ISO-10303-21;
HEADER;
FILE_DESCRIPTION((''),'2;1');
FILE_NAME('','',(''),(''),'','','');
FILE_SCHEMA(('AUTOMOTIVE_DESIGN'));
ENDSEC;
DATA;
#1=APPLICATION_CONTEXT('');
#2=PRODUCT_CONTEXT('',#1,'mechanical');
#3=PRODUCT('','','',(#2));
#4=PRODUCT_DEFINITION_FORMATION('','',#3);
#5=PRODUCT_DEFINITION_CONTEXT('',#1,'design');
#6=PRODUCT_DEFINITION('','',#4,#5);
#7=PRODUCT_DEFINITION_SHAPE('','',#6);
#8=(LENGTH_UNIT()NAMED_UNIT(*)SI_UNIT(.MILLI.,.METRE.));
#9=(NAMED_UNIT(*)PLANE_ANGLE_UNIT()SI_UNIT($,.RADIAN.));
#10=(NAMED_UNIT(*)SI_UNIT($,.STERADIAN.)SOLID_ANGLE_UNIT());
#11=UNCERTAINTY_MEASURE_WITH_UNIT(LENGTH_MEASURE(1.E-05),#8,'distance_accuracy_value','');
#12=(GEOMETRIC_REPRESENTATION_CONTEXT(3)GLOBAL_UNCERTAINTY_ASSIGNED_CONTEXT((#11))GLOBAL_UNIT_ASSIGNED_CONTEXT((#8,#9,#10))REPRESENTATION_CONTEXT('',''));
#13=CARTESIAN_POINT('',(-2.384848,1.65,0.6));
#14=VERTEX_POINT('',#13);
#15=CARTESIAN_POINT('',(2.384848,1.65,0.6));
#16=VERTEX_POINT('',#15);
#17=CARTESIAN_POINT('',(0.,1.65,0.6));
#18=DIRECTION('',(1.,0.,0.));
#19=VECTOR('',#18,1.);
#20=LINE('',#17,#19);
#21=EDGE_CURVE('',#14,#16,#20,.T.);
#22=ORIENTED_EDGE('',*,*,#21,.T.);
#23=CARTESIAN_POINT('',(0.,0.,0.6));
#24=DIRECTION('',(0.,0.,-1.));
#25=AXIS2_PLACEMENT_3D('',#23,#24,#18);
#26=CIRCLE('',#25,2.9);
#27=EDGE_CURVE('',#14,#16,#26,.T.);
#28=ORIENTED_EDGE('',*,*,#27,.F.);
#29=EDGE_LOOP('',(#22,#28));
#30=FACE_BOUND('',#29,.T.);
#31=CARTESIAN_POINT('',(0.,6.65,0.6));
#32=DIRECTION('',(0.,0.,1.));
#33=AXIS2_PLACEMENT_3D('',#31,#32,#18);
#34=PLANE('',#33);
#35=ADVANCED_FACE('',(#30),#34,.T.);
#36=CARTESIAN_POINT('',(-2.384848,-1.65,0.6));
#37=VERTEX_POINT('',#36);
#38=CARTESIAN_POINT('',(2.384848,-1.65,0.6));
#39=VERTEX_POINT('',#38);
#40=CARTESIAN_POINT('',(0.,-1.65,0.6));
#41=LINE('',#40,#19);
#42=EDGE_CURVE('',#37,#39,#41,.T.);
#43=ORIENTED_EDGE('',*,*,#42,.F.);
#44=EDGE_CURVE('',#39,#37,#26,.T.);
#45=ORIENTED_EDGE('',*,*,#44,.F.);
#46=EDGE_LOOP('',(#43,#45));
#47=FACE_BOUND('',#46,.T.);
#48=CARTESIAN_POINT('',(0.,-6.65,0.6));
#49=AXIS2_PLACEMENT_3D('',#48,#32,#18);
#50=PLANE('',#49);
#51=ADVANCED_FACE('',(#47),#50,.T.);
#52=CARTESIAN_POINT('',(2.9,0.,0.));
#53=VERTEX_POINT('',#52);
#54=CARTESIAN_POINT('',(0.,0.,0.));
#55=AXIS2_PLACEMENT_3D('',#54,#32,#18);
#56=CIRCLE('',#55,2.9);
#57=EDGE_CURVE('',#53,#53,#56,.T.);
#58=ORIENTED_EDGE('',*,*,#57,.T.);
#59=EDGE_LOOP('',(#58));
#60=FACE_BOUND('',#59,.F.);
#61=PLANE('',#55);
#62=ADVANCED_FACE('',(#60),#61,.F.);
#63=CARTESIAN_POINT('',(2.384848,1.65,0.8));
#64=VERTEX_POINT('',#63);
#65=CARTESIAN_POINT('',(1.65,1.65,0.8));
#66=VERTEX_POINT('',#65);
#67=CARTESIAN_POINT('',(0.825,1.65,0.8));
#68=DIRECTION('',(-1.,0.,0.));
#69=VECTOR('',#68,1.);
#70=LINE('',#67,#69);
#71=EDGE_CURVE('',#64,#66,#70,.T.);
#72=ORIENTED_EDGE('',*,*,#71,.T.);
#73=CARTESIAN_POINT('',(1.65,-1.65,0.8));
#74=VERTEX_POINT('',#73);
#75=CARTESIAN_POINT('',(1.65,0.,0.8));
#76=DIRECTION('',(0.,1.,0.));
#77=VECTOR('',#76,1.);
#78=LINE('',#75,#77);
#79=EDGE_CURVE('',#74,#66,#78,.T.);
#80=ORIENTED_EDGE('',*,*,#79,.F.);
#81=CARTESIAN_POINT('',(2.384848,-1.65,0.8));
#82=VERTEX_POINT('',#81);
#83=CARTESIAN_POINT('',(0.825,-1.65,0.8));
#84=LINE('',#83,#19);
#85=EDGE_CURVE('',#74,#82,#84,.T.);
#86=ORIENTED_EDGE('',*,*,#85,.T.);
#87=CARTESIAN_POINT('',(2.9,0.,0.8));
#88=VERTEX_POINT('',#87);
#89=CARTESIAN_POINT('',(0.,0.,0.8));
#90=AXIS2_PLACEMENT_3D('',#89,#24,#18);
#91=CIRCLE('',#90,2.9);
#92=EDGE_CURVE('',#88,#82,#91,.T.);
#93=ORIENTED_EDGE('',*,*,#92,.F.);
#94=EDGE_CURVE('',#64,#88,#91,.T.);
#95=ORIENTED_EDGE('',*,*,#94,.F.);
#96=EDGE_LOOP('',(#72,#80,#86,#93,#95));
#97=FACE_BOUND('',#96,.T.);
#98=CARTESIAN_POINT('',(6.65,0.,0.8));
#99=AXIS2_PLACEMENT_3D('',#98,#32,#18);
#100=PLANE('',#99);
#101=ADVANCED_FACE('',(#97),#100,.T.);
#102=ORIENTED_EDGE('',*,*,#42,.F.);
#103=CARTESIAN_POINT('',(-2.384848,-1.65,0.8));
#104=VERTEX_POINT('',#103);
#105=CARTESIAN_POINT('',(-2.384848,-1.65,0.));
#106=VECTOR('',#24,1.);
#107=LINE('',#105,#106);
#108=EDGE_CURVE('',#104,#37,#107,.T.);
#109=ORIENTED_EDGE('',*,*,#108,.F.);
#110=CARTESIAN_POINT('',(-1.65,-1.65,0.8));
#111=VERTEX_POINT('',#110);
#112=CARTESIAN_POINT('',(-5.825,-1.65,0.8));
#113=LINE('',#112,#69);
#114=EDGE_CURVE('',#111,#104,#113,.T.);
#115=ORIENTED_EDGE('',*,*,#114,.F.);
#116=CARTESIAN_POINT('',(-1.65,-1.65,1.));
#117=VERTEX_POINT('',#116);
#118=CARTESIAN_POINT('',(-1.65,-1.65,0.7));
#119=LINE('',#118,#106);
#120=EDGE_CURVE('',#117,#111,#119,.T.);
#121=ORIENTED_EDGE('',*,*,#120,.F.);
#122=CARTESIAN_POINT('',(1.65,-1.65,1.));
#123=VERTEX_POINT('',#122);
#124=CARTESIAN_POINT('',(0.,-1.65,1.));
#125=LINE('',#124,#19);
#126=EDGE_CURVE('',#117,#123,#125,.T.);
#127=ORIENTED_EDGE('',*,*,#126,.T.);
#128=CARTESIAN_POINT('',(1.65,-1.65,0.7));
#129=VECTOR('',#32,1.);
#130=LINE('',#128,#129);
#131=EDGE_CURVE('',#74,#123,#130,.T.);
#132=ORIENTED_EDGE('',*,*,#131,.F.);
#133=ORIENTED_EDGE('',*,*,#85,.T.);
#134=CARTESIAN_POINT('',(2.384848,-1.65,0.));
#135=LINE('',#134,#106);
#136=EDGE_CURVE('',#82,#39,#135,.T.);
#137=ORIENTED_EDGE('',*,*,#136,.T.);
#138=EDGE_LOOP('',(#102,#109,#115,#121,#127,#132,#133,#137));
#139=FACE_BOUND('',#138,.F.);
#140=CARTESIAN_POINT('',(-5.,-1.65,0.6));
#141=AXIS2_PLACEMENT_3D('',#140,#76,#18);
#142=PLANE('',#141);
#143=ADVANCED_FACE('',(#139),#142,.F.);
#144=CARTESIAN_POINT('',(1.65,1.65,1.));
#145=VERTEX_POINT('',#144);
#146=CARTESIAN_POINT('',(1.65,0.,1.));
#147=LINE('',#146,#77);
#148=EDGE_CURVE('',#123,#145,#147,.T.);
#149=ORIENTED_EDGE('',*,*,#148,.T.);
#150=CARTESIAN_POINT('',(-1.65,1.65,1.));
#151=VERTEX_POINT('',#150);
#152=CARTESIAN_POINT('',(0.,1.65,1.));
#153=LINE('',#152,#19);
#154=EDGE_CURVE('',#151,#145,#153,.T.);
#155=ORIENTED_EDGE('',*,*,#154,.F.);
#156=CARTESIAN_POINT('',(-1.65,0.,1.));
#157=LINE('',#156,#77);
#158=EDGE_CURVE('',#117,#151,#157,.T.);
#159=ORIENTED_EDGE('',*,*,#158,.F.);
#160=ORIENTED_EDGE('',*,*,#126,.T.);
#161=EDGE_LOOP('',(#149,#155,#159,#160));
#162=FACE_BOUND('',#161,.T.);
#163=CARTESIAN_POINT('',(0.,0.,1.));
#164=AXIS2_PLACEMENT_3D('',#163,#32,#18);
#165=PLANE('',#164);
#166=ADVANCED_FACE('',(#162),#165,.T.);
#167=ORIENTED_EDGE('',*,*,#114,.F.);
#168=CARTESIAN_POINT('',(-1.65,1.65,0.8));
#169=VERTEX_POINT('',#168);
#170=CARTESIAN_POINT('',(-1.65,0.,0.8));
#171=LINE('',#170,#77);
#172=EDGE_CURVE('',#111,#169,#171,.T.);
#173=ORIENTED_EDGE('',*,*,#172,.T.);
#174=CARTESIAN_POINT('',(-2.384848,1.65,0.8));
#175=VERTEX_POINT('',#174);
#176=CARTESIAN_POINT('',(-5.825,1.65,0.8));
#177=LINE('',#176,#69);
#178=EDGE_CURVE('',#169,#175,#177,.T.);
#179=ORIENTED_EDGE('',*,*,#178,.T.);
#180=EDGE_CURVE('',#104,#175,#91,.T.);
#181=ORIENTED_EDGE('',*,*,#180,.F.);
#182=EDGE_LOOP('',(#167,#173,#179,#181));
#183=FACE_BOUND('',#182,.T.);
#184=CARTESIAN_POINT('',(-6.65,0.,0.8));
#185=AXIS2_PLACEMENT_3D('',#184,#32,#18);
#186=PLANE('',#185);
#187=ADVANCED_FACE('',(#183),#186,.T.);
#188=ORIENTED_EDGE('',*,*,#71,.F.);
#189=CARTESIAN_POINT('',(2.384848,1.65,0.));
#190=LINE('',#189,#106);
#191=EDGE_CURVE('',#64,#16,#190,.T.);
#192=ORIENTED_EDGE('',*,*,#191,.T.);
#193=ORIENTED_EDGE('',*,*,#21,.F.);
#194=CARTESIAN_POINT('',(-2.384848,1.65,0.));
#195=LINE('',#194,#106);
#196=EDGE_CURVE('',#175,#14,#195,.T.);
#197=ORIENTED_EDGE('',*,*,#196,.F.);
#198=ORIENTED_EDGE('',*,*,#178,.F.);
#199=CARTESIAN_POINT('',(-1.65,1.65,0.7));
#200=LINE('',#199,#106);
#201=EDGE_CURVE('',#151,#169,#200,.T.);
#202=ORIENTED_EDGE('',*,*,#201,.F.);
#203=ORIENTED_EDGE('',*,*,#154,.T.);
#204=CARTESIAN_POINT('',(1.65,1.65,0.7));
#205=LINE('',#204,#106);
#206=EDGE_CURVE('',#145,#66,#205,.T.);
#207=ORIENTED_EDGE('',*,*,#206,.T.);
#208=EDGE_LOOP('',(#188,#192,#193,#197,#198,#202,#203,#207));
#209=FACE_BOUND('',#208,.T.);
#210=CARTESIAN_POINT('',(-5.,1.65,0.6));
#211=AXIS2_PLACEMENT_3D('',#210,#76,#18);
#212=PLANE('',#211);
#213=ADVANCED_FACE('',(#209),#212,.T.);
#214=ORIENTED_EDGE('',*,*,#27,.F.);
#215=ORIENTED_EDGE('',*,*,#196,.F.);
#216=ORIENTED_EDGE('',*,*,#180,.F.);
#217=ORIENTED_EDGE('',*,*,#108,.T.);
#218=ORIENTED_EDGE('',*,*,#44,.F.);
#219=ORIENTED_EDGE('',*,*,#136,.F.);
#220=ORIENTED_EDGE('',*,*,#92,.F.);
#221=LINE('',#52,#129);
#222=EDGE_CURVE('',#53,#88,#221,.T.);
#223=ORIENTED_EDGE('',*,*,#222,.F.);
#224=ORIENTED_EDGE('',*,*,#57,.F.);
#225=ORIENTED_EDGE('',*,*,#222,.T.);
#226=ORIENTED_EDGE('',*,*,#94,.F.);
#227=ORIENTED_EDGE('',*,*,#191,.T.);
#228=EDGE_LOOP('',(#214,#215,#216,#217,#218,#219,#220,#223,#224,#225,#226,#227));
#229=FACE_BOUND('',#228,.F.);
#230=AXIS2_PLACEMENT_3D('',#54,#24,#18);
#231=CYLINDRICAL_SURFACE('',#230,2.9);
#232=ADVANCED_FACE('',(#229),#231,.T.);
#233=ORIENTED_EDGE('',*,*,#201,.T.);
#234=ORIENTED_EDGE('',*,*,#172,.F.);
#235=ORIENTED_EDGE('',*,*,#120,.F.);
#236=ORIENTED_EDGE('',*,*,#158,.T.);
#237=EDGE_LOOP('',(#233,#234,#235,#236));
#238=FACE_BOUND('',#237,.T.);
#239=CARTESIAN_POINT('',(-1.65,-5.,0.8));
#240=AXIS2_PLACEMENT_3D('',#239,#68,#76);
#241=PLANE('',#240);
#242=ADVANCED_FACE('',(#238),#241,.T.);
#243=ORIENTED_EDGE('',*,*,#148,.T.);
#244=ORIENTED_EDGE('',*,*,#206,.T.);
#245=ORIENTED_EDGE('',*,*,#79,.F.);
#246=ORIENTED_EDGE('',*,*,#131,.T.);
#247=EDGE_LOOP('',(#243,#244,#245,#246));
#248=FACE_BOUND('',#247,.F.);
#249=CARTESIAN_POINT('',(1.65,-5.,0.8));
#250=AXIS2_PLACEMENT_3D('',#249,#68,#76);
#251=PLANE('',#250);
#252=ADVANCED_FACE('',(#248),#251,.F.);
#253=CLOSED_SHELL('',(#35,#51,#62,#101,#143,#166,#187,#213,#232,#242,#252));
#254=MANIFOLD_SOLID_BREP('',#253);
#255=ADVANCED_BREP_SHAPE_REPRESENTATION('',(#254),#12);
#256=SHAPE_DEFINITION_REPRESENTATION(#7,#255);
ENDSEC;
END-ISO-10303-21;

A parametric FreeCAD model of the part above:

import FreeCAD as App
import Part
import Sketcher

V = App.Vector
Q = App.Units.Quantity

doc = App.newDocument("Part")
body = doc.addObject("PartDesign::Body", "Body")

# Sketch on XY plane
sketch1 = body.newObject("Sketcher::SketchObject", "Sketch")
sketch1.AttachmentSupport = (doc.getObject("XY_Plane"), [""])
sketch1.MapMode = "FlatFace"
sketch1.addGeometry([
    Part.LineSegment(V(-5, -2, 0), V(-5, -12, 0)),
    Part.LineSegment(V(-5, -12, 0), V(5, -12, 0)),
    Part.LineSegment(V(5, -12, 0), V(5, -2, 0)),
    Part.LineSegment(V(5, -2, 0), V(-5, -2, 0)),
], False)
sketch1.addConstraint([
    Sketcher.Constraint("Coincident", 0, 2, 1, 1),
    Sketcher.Constraint("Coincident", 1, 2, 2, 1),
    Sketcher.Constraint("Coincident", 2, 2, 3, 1),
    Sketcher.Constraint("Coincident", 3, 2, 0, 1),
    Sketcher.Constraint("Vertical", 0),
    Sketcher.Constraint("Horizontal", 1),
    Sketcher.Constraint("Vertical", 2),
    Sketcher.Constraint("Horizontal", 3),
    Sketcher.Constraint("Equal", 3, 0),
    Sketcher.Constraint("DistanceX", 1, 1, 1, 2, Q("10 mm")),
    Sketcher.Constraint("DistanceX", 0, 2, -1, 1, Q("5 mm")),
    Sketcher.Constraint("DistanceY", 0, 2, -1, 1, Q("11.65 mm")),
])
pad1 = body.newObject("PartDesign::Pad", "Pad")
pad1.Profile = sketch1
pad1.Length = 0.4
body2 = doc.addObject("PartDesign::Body", "Body001")

# Sketch on XY plane
sketch2 = body2.newObject("Sketcher::SketchObject", "Sketch001")
sketch2.AttachmentSupport = (doc.getObject("XY_Plane001"), [""])
sketch2.MapMode = "FlatFace"
sketch2.AttachmentOffset = App.Placement(V(0, 0, 0.2), App.Rotation())
sketch2.addGeometry([
    Part.LineSegment(V(2, 5, 0), V(2, -5, 0)),
    Part.LineSegment(V(2, -5, 0), V(12, -5, 0)),
    Part.LineSegment(V(12, -5, 0), V(12, 5, 0)),
    Part.LineSegment(V(12, 5, 0), V(2, 5, 0)),
], False)
sketch2.addConstraint([
    Sketcher.Constraint("Coincident", 0, 2, 1, 1),
    Sketcher.Constraint("Coincident", 1, 2, 2, 1),
    Sketcher.Constraint("Coincident", 2, 2, 3, 1),
    Sketcher.Constraint("Coincident", 3, 2, 0, 1),
    Sketcher.Constraint("Vertical", 0),
    Sketcher.Constraint("Horizontal", 1),
    Sketcher.Constraint("Vertical", 2),
    Sketcher.Constraint("Horizontal", 3),
    Sketcher.Constraint("Equal", 3, 0),
    Sketcher.Constraint("DistanceX", 1, 1, 1, 2, Q("10 mm")),
    Sketcher.Constraint("DistanceY", 0, 2, -1, 1, Q("5 mm")),
    Sketcher.Constraint("DistanceX", -1, 1, 0, 2, Q("1.65 mm")),
])
pad2 = body2.newObject("PartDesign::Pad", "Pad001")
pad2.Profile = sketch2
pad2.Length = 0.2
body3 = doc.addObject("PartDesign::Body", "Body002")

# Sketch on XY plane
sketch3 = body3.newObject("Sketcher::SketchObject", "Sketch002")
sketch3.AttachmentSupport = (doc.getObject("XY_Plane002"), [""])
sketch3.MapMode = "FlatFace"
sketch3.addGeometry([
    Part.LineSegment(V(-5, 12, 0), V(-5, 2, 0)),
    Part.LineSegment(V(-5, 2, 0), V(5, 2, 0)),
    Part.LineSegment(V(5, 2, 0), V(5, 12, 0)),
    Part.LineSegment(V(5, 12, 0), V(-5, 12, 0)),
], False)
sketch3.addConstraint([
    Sketcher.Constraint("Coincident", 0, 2, 1, 1),
    Sketcher.Constraint("Coincident", 1, 2, 2, 1),
    Sketcher.Constraint("Coincident", 2, 2, 3, 1),
    Sketcher.Constraint("Coincident", 3, 2, 0, 1),
    Sketcher.Constraint("Vertical", 0),
    Sketcher.Constraint("Horizontal", 1),
    Sketcher.Constraint("Vertical", 2),
    Sketcher.Constraint("Horizontal", 3),
    Sketcher.Constraint("Equal", 3, 0),
    Sketcher.Constraint("DistanceX", 1, 1, 1, 2, Q("10 mm")),
    Sketcher.Constraint("DistanceX", 0, 2, -1, 1, Q("5 mm")),
    Sketcher.Constraint("DistanceY", -1, 1, 0, 2, Q("1.65 mm")),
])
pad3 = body3.newObject("PartDesign::Pad", "Pad002")
pad3.Profile = sketch3
pad3.Length = 0.4
body4 = doc.addObject("PartDesign::Body", "Body003")

# Sketch on XY plane
sketch4 = body4.newObject("Sketcher::SketchObject", "Sketch003")
sketch4.AttachmentSupport = (doc.getObject("XY_Plane003"), [""])
sketch4.MapMode = "FlatFace"
sketch4.AttachmentOffset = App.Placement(V(0, 0, 0.2), App.Rotation())
sketch4.addGeometry([
    Part.LineSegment(V(-12, 5, 0), V(-12, -5, 0)),
    Part.LineSegment(V(-12, -5, 0), V(-2, -5, 0)),
    Part.LineSegment(V(-2, -5, 0), V(-2, 5, 0)),
    Part.LineSegment(V(-2, 5, 0), V(-12, 5, 0)),
], False)
sketch4.addConstraint([
    Sketcher.Constraint("Coincident", 0, 2, 1, 1),
    Sketcher.Constraint("Coincident", 1, 2, 2, 1),
    Sketcher.Constraint("Coincident", 2, 2, 3, 1),
    Sketcher.Constraint("Coincident", 3, 2, 0, 1),
    Sketcher.Constraint("Vertical", 0),
    Sketcher.Constraint("Horizontal", 1),
    Sketcher.Constraint("Vertical", 2),
    Sketcher.Constraint("Horizontal", 3),
    Sketcher.Constraint("Equal", 3, 0),
    Sketcher.Constraint("DistanceX", 1, 1, 1, 2, Q("10 mm")),
    Sketcher.Constraint("DistanceY", 0, 2, -1, 1, Q("5 mm")),
    Sketcher.Constraint("DistanceX", 0, 2, -1, 1, Q("11.65 mm")),
])
pad4 = body4.newObject("PartDesign::Pad", "Pad003")
pad4.Profile = sketch4
pad4.Length = 0.2
doc.recompute()

boolean = body4.newObject("PartDesign::Boolean", "Boolean")
boolean.Type = "Fuse"
boolean.addObjects([body])
doc.recompute()

boolean2 = body4.newObject("PartDesign::Boolean", "Boolean001")
boolean2.Type = "Fuse"
boolean2.addObjects([body2])
doc.recompute()

boolean3 = body4.newObject("PartDesign::Boolean", "Boolean002")
boolean3.Type = "Fuse"
boolean3.addObjects([body3])
body5 = doc.addObject("PartDesign::Body", "Body004")
doc.recompute()

body4.Placement = App.Placement(V(0, 0, 0.6), App.Rotation(V(0, 0, 1), 0))
boolean4 = body5.newObject("PartDesign::Boolean", "Boolean003")
boolean4.Type = "Fuse"
boolean4.addObjects([body4])
body6 = doc.addObject("PartDesign::Body", "Body005")

# Sketch on XY plane
sketch5 = body6.newObject("Sketcher::SketchObject", "Sketch004")
sketch5.AttachmentSupport = (doc.getObject("XY_Plane005"), [""])
sketch5.MapMode = "FlatFace"
sketch5.addGeometry(Part.Circle(V(0, 0, 0), V(0, 0, 1), 2.9), False)
sketch5.addConstraint([
    Sketcher.Constraint("Coincident", 0, 3, -1, 1),
    Sketcher.Constraint("Diameter", 0, Q("5.8 mm")),
])
pad5 = body6.newObject("PartDesign::Pad", "Pad004")
pad5.Profile = sketch5
pad5.Length = 1
doc.recompute()

boolean5 = body6.newObject("PartDesign::Boolean", "Boolean004")
boolean5.Type = "Cut"
boolean5.addObjects([body5])

doc.recompute()
